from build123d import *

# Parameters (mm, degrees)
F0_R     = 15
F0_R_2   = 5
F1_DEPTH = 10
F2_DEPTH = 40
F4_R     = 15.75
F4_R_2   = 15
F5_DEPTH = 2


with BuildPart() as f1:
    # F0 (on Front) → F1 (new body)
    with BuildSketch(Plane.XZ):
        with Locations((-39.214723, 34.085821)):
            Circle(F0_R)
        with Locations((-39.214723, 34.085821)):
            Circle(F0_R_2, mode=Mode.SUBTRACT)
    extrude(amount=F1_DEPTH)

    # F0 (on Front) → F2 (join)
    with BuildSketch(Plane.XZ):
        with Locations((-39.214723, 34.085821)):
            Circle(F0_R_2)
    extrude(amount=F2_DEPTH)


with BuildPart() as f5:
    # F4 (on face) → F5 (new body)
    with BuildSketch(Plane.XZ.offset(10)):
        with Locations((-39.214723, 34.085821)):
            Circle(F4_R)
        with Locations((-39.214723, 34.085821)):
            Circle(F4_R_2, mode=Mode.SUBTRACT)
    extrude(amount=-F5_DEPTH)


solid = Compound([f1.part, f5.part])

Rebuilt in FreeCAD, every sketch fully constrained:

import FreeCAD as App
import Part
import Sketcher
Q = App.Units.Quantity

doc = App.newDocument("Part")
body = doc.addObject("PartDesign::Body", "Body")

sketch1 = doc.addObject("Sketcher::SketchObject", "Sketch")
body.addObject(sketch1)
sketch1.AttachmentSupport = (doc.XZ_Plane, [""])
sketch1.MapMode = "FlatFace"
sketch1.addGeometry([
    Part.Circle(App.Vector(-39, 34, 0), App.Vector(0, 0, 1), 15),
    Part.Circle(App.Vector(-39, 34, 0), App.Vector(0, 0, 1), 5),
], False)
sketch1.addConstraint([
    Sketcher.Constraint("Coincident", 1, 3, 0, 3),
    Sketcher.Constraint("Diameter", 0, Q("30 mm")),
    Sketcher.Constraint("Diameter", 1, Q("10 mm")),
    Sketcher.Constraint("DistanceY", -1, 1, 0, 3, Q("34.085821 mm")),
    Sketcher.Constraint("DistanceX", 0, 3, -1, 1, Q("39.214723 mm")),
])
pad1 = doc.addObject("PartDesign::Pad", "Pad")
body.addObject(pad1)
pad1.Profile = sketch1
pad1.Length = 10

sketch2 = doc.addObject("Sketcher::SketchObject", "Sketch001")
body.addObject(sketch2)
sketch2.AttachmentSupport = (doc.XZ_Plane, [""])
sketch2.MapMode = "FlatFace"
sketch2.addGeometry(Part.Circle(App.Vector(-39, 34, 0), App.Vector(0, 0, 1), 5), False)
sketch2.addConstraint([
    Sketcher.Constraint("Diameter", 0, Q("10 mm")),
    Sketcher.Constraint("DistanceY", -1, 1, 0, 3, Q("34.085821 mm")),
    Sketcher.Constraint("DistanceX", 0, 3, -1, 1, Q("39.214723 mm")),
])
pad2 = doc.addObject("PartDesign::Pad", "Pad001")
body.addObject(pad2)
pad2.Profile = sketch2
pad2.Length = 40
body2 = doc.addObject("PartDesign::Body", "Body001")

sketch3 = doc.addObject("Sketcher::SketchObject", "Sketch002")
body2.addObject(sketch3)
sketch3.AttachmentSupport = (doc.getObject("XZ_Plane001"), [""])
sketch3.MapMode = "FlatFace"
sketch3.AttachmentOffset = App.Placement(App.Vector(0, 0, 10), App.Rotation())
sketch3.addGeometry([
    Part.Circle(App.Vector(-39, 34, 0), App.Vector(0, 0, 1), 16),
    Part.Circle(App.Vector(-39, 34, 0), App.Vector(0, 0, 1), 15),
], False)
sketch3.addConstraint([
    Sketcher.Constraint("Coincident", 1, 3, 0, 3),
    Sketcher.Constraint("Diameter", 1, Q("30 mm")),
    Sketcher.Constraint("Diameter", 0, Q("31.5 mm")),
    Sketcher.Constraint("DistanceY", -1, 1, 0, 3, Q("34.085821 mm")),
    Sketcher.Constraint("DistanceX", 0, 3, -1, 1, Q("39.214723 mm")),
])
pad3 = doc.addObject("PartDesign::Pad", "Pad002")
body2.addObject(pad3)
pad3.Profile = sketch3
pad3.Length = 2
pad3.Reversed = True

doc.recompute()
